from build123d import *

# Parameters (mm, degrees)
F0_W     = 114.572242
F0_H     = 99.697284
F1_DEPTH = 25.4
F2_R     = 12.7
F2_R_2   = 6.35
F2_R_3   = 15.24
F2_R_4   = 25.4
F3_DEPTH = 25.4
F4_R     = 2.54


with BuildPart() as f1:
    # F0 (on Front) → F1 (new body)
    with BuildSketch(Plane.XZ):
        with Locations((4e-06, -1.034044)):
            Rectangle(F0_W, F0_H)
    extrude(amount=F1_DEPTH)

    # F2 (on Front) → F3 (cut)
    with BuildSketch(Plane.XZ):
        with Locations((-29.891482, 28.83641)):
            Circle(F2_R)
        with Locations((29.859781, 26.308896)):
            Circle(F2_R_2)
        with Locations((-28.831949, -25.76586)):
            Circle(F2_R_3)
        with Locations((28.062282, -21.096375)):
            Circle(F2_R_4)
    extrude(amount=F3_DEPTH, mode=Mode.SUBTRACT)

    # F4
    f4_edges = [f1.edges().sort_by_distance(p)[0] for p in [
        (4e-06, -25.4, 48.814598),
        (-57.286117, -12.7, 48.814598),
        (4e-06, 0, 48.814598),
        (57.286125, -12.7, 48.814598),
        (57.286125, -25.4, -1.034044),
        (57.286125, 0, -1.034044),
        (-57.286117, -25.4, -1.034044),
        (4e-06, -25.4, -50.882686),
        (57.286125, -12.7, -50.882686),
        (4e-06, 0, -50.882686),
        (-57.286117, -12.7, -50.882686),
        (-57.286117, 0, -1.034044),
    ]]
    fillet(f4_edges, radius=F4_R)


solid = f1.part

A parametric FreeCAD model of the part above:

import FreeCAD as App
import Part
import Sketcher
Q = App.Units.Quantity


def edges_at(feature, points):
    """Names of the edges that pass closest to the given points."""
    edges = feature.Shape.Edges
    near = lambda p: min(range(len(edges)), key=lambda i: edges[i].distToShape(Part.Vertex(*p))[0])
    return sorted({f"Edge{near(p) + 1}" for p in points})

doc = App.newDocument("Part")
params = doc.addObject("Spreadsheet::Sheet", "Params")
for row, (alias, value) in enumerate([
    ("pad1_length", "1 in"),
    ("sketch2_diameter", "1 in"),
    ("sketch2_diameter2", "2 in"),
    ("sketch2_diameter3", "0.5 in"),
    ("sketch2_diameter4", "1.2 in"),
    ("pocket1_length", "1 in"),
    ("fillet_radius", "0.1 in"),
], start=1):
    params.set(f"A{row}", alias)
    params.set(f"B{row}", "=" + value)
    params.setAlias(f"B{row}", alias)

body = doc.addObject("PartDesign::Body", "Body")

sketch1 = body.newObject("Sketcher::SketchObject", "Sketch")
sketch1.AttachmentSupport = (doc.getObject("XZ_Plane"), [""])
sketch1.MapMode = "FlatFace"
sketch1.addGeometry(Part.LineSegment(App.Vector(-57.286117, 48.814598, 0), App.Vector(-57.286117, -50.882686, 0)), False)
sketch1.addGeometry(Part.LineSegment(App.Vector(-57.286117, -50.882686, 0), App.Vector(57.286125, -50.882686, 0)), False)
sketch1.addGeometry(Part.LineSegment(App.Vector(57.286125, -50.882686, 0), App.Vector(57.286125, 48.814598, 0)), False)
sketch1.addGeometry(Part.LineSegment(App.Vector(57.286125, 48.814598, 0), App.Vector(-57.286117, 48.814598, 0)), False)
sketch1.addConstraint(Sketcher.Constraint("Coincident", 0, 2, 1, 1))
sketch1.addConstraint(Sketcher.Constraint("Coincident", 1, 2, 2, 1))
sketch1.addConstraint(Sketcher.Constraint("Coincident", 2, 2, 3, 1))
sketch1.addConstraint(Sketcher.Constraint("Coincident", 3, 2, 0, 1))
sketch1.addConstraint(Sketcher.Constraint("Vertical", 0))
sketch1.addConstraint(Sketcher.Constraint("Horizontal", 1))
sketch1.addConstraint(Sketcher.Constraint("Vertical", 2))
sketch1.addConstraint(Sketcher.Constraint("Horizontal", 3))
sketch1.addConstraint(Sketcher.Constraint("DistanceX", 1, 1, 1, 2, 114.572242))
sketch1.addConstraint(Sketcher.Constraint("DistanceY", 0, 2, 0, 1, 99.697284))
sketch1.addConstraint(Sketcher.Constraint("DistanceX", 0, 2, -1, 1, 57.286117))
sketch1.addConstraint(Sketcher.Constraint("DistanceY", 0, 2, -1, 1, 50.882686))
pad1 = body.newObject("PartDesign::Pad", "Pad")
pad1.Profile = sketch1
pad1.setExpression("Length", "Params.pad1_length")

sketch2 = body.newObject("Sketcher::SketchObject", "Sketch001")
sketch2.AttachmentSupport = (doc.getObject("XZ_Plane"), [""])
sketch2.MapMode = "FlatFace"
sketch2.addGeometry(Part.Circle(App.Vector(-29.891482, 28.83641, 0), App.Vector(0, 0, 1), 12.7), False)
sketch2.addGeometry(Part.Circle(App.Vector(29.859781, 26.308896, 0), App.Vector(0, 0, 1), 6.35), False)
sketch2.addGeometry(Part.Circle(App.Vector(-28.831949, -25.76586, 0), App.Vector(0, 0, 1), 15.24), False)
sketch2.addGeometry(Part.Circle(App.Vector(28.062282, -21.096375, 0), App.Vector(0, 0, 1), 25.4), False)
sketch2.addConstraint(Sketcher.Constraint("Diameter", 0, Q("1 in")))
sketch2.addConstraint(Sketcher.Constraint("Diameter", 3, Q("2 in")))
sketch2.addConstraint(Sketcher.Constraint("Diameter", 1, Q("0.5 in")))
sketch2.addConstraint(Sketcher.Constraint("Diameter", 2, Q("1.2 in")))
sketch2.addConstraint(Sketcher.Constraint("DistanceX", 3, 3, 1, 3, 1.797499))
sketch2.addConstraint(Sketcher.Constraint("DistanceX", 0, 3, -1, 1, 29.891482))
sketch2.addConstraint(Sketcher.Constraint("DistanceY", -1, 1, 0, 3, 28.83641))
sketch2.addConstraint(Sketcher.Constraint("DistanceX", -1, 1, 1, 3, 29.859781))
sketch2.addConstraint(Sketcher.Constraint("DistanceX", 2, 3, -1, 1, 28.831949))
sketch2.addConstraint(Sketcher.Constraint("DistanceY", 2, 3, -1, 1, 25.76586))
sketch2.addConstraint(Sketcher.Constraint("DistanceY", 3, 3, 1, 3, 47.405271))
sketch2.addConstraint(Sketcher.Constraint("DistanceY", -1, 1, 1, 3, 26.308896))
sketch2.setExpression("Constraints[0]", "Params.sketch2_diameter")
sketch2.setExpression("Constraints[1]", "Params.sketch2_diameter2")
sketch2.setExpression("Constraints[2]", "Params.sketch2_diameter3")
sketch2.setExpression("Constraints[3]", "Params.sketch2_diameter4")
pocket1 = body.newObject("PartDesign::Pocket", "Pocket")
pocket1.Profile = sketch2
pocket1.setExpression("Length", "Params.pocket1_length")
pocket1.Reversed = True
doc.recompute()

fillet = body.newObject("PartDesign::Fillet", "Fillet")
fillet.Base = (pocket1, edges_at(pocket1, [
    (0, -25.4, 48.815),
    (-57.286, -12.7, 48.815),
    (0, 0, 48.815),
    (57.286, -12.7, 48.815),
    (57.286, -25.4, -1.034),
    (57.286, 0, -1.034),
    (-57.286, -25.4, -1.034),
    (0, -25.4, -50.883),
    (57.286, -12.7, -50.883),
    (0, 0, -50.883),
    (-57.286, -12.7, -50.883),
    (-57.286, 0, -1.034),
]))
fillet.setExpression("Radius", "Params.fillet_radius")

doc.recompute()
